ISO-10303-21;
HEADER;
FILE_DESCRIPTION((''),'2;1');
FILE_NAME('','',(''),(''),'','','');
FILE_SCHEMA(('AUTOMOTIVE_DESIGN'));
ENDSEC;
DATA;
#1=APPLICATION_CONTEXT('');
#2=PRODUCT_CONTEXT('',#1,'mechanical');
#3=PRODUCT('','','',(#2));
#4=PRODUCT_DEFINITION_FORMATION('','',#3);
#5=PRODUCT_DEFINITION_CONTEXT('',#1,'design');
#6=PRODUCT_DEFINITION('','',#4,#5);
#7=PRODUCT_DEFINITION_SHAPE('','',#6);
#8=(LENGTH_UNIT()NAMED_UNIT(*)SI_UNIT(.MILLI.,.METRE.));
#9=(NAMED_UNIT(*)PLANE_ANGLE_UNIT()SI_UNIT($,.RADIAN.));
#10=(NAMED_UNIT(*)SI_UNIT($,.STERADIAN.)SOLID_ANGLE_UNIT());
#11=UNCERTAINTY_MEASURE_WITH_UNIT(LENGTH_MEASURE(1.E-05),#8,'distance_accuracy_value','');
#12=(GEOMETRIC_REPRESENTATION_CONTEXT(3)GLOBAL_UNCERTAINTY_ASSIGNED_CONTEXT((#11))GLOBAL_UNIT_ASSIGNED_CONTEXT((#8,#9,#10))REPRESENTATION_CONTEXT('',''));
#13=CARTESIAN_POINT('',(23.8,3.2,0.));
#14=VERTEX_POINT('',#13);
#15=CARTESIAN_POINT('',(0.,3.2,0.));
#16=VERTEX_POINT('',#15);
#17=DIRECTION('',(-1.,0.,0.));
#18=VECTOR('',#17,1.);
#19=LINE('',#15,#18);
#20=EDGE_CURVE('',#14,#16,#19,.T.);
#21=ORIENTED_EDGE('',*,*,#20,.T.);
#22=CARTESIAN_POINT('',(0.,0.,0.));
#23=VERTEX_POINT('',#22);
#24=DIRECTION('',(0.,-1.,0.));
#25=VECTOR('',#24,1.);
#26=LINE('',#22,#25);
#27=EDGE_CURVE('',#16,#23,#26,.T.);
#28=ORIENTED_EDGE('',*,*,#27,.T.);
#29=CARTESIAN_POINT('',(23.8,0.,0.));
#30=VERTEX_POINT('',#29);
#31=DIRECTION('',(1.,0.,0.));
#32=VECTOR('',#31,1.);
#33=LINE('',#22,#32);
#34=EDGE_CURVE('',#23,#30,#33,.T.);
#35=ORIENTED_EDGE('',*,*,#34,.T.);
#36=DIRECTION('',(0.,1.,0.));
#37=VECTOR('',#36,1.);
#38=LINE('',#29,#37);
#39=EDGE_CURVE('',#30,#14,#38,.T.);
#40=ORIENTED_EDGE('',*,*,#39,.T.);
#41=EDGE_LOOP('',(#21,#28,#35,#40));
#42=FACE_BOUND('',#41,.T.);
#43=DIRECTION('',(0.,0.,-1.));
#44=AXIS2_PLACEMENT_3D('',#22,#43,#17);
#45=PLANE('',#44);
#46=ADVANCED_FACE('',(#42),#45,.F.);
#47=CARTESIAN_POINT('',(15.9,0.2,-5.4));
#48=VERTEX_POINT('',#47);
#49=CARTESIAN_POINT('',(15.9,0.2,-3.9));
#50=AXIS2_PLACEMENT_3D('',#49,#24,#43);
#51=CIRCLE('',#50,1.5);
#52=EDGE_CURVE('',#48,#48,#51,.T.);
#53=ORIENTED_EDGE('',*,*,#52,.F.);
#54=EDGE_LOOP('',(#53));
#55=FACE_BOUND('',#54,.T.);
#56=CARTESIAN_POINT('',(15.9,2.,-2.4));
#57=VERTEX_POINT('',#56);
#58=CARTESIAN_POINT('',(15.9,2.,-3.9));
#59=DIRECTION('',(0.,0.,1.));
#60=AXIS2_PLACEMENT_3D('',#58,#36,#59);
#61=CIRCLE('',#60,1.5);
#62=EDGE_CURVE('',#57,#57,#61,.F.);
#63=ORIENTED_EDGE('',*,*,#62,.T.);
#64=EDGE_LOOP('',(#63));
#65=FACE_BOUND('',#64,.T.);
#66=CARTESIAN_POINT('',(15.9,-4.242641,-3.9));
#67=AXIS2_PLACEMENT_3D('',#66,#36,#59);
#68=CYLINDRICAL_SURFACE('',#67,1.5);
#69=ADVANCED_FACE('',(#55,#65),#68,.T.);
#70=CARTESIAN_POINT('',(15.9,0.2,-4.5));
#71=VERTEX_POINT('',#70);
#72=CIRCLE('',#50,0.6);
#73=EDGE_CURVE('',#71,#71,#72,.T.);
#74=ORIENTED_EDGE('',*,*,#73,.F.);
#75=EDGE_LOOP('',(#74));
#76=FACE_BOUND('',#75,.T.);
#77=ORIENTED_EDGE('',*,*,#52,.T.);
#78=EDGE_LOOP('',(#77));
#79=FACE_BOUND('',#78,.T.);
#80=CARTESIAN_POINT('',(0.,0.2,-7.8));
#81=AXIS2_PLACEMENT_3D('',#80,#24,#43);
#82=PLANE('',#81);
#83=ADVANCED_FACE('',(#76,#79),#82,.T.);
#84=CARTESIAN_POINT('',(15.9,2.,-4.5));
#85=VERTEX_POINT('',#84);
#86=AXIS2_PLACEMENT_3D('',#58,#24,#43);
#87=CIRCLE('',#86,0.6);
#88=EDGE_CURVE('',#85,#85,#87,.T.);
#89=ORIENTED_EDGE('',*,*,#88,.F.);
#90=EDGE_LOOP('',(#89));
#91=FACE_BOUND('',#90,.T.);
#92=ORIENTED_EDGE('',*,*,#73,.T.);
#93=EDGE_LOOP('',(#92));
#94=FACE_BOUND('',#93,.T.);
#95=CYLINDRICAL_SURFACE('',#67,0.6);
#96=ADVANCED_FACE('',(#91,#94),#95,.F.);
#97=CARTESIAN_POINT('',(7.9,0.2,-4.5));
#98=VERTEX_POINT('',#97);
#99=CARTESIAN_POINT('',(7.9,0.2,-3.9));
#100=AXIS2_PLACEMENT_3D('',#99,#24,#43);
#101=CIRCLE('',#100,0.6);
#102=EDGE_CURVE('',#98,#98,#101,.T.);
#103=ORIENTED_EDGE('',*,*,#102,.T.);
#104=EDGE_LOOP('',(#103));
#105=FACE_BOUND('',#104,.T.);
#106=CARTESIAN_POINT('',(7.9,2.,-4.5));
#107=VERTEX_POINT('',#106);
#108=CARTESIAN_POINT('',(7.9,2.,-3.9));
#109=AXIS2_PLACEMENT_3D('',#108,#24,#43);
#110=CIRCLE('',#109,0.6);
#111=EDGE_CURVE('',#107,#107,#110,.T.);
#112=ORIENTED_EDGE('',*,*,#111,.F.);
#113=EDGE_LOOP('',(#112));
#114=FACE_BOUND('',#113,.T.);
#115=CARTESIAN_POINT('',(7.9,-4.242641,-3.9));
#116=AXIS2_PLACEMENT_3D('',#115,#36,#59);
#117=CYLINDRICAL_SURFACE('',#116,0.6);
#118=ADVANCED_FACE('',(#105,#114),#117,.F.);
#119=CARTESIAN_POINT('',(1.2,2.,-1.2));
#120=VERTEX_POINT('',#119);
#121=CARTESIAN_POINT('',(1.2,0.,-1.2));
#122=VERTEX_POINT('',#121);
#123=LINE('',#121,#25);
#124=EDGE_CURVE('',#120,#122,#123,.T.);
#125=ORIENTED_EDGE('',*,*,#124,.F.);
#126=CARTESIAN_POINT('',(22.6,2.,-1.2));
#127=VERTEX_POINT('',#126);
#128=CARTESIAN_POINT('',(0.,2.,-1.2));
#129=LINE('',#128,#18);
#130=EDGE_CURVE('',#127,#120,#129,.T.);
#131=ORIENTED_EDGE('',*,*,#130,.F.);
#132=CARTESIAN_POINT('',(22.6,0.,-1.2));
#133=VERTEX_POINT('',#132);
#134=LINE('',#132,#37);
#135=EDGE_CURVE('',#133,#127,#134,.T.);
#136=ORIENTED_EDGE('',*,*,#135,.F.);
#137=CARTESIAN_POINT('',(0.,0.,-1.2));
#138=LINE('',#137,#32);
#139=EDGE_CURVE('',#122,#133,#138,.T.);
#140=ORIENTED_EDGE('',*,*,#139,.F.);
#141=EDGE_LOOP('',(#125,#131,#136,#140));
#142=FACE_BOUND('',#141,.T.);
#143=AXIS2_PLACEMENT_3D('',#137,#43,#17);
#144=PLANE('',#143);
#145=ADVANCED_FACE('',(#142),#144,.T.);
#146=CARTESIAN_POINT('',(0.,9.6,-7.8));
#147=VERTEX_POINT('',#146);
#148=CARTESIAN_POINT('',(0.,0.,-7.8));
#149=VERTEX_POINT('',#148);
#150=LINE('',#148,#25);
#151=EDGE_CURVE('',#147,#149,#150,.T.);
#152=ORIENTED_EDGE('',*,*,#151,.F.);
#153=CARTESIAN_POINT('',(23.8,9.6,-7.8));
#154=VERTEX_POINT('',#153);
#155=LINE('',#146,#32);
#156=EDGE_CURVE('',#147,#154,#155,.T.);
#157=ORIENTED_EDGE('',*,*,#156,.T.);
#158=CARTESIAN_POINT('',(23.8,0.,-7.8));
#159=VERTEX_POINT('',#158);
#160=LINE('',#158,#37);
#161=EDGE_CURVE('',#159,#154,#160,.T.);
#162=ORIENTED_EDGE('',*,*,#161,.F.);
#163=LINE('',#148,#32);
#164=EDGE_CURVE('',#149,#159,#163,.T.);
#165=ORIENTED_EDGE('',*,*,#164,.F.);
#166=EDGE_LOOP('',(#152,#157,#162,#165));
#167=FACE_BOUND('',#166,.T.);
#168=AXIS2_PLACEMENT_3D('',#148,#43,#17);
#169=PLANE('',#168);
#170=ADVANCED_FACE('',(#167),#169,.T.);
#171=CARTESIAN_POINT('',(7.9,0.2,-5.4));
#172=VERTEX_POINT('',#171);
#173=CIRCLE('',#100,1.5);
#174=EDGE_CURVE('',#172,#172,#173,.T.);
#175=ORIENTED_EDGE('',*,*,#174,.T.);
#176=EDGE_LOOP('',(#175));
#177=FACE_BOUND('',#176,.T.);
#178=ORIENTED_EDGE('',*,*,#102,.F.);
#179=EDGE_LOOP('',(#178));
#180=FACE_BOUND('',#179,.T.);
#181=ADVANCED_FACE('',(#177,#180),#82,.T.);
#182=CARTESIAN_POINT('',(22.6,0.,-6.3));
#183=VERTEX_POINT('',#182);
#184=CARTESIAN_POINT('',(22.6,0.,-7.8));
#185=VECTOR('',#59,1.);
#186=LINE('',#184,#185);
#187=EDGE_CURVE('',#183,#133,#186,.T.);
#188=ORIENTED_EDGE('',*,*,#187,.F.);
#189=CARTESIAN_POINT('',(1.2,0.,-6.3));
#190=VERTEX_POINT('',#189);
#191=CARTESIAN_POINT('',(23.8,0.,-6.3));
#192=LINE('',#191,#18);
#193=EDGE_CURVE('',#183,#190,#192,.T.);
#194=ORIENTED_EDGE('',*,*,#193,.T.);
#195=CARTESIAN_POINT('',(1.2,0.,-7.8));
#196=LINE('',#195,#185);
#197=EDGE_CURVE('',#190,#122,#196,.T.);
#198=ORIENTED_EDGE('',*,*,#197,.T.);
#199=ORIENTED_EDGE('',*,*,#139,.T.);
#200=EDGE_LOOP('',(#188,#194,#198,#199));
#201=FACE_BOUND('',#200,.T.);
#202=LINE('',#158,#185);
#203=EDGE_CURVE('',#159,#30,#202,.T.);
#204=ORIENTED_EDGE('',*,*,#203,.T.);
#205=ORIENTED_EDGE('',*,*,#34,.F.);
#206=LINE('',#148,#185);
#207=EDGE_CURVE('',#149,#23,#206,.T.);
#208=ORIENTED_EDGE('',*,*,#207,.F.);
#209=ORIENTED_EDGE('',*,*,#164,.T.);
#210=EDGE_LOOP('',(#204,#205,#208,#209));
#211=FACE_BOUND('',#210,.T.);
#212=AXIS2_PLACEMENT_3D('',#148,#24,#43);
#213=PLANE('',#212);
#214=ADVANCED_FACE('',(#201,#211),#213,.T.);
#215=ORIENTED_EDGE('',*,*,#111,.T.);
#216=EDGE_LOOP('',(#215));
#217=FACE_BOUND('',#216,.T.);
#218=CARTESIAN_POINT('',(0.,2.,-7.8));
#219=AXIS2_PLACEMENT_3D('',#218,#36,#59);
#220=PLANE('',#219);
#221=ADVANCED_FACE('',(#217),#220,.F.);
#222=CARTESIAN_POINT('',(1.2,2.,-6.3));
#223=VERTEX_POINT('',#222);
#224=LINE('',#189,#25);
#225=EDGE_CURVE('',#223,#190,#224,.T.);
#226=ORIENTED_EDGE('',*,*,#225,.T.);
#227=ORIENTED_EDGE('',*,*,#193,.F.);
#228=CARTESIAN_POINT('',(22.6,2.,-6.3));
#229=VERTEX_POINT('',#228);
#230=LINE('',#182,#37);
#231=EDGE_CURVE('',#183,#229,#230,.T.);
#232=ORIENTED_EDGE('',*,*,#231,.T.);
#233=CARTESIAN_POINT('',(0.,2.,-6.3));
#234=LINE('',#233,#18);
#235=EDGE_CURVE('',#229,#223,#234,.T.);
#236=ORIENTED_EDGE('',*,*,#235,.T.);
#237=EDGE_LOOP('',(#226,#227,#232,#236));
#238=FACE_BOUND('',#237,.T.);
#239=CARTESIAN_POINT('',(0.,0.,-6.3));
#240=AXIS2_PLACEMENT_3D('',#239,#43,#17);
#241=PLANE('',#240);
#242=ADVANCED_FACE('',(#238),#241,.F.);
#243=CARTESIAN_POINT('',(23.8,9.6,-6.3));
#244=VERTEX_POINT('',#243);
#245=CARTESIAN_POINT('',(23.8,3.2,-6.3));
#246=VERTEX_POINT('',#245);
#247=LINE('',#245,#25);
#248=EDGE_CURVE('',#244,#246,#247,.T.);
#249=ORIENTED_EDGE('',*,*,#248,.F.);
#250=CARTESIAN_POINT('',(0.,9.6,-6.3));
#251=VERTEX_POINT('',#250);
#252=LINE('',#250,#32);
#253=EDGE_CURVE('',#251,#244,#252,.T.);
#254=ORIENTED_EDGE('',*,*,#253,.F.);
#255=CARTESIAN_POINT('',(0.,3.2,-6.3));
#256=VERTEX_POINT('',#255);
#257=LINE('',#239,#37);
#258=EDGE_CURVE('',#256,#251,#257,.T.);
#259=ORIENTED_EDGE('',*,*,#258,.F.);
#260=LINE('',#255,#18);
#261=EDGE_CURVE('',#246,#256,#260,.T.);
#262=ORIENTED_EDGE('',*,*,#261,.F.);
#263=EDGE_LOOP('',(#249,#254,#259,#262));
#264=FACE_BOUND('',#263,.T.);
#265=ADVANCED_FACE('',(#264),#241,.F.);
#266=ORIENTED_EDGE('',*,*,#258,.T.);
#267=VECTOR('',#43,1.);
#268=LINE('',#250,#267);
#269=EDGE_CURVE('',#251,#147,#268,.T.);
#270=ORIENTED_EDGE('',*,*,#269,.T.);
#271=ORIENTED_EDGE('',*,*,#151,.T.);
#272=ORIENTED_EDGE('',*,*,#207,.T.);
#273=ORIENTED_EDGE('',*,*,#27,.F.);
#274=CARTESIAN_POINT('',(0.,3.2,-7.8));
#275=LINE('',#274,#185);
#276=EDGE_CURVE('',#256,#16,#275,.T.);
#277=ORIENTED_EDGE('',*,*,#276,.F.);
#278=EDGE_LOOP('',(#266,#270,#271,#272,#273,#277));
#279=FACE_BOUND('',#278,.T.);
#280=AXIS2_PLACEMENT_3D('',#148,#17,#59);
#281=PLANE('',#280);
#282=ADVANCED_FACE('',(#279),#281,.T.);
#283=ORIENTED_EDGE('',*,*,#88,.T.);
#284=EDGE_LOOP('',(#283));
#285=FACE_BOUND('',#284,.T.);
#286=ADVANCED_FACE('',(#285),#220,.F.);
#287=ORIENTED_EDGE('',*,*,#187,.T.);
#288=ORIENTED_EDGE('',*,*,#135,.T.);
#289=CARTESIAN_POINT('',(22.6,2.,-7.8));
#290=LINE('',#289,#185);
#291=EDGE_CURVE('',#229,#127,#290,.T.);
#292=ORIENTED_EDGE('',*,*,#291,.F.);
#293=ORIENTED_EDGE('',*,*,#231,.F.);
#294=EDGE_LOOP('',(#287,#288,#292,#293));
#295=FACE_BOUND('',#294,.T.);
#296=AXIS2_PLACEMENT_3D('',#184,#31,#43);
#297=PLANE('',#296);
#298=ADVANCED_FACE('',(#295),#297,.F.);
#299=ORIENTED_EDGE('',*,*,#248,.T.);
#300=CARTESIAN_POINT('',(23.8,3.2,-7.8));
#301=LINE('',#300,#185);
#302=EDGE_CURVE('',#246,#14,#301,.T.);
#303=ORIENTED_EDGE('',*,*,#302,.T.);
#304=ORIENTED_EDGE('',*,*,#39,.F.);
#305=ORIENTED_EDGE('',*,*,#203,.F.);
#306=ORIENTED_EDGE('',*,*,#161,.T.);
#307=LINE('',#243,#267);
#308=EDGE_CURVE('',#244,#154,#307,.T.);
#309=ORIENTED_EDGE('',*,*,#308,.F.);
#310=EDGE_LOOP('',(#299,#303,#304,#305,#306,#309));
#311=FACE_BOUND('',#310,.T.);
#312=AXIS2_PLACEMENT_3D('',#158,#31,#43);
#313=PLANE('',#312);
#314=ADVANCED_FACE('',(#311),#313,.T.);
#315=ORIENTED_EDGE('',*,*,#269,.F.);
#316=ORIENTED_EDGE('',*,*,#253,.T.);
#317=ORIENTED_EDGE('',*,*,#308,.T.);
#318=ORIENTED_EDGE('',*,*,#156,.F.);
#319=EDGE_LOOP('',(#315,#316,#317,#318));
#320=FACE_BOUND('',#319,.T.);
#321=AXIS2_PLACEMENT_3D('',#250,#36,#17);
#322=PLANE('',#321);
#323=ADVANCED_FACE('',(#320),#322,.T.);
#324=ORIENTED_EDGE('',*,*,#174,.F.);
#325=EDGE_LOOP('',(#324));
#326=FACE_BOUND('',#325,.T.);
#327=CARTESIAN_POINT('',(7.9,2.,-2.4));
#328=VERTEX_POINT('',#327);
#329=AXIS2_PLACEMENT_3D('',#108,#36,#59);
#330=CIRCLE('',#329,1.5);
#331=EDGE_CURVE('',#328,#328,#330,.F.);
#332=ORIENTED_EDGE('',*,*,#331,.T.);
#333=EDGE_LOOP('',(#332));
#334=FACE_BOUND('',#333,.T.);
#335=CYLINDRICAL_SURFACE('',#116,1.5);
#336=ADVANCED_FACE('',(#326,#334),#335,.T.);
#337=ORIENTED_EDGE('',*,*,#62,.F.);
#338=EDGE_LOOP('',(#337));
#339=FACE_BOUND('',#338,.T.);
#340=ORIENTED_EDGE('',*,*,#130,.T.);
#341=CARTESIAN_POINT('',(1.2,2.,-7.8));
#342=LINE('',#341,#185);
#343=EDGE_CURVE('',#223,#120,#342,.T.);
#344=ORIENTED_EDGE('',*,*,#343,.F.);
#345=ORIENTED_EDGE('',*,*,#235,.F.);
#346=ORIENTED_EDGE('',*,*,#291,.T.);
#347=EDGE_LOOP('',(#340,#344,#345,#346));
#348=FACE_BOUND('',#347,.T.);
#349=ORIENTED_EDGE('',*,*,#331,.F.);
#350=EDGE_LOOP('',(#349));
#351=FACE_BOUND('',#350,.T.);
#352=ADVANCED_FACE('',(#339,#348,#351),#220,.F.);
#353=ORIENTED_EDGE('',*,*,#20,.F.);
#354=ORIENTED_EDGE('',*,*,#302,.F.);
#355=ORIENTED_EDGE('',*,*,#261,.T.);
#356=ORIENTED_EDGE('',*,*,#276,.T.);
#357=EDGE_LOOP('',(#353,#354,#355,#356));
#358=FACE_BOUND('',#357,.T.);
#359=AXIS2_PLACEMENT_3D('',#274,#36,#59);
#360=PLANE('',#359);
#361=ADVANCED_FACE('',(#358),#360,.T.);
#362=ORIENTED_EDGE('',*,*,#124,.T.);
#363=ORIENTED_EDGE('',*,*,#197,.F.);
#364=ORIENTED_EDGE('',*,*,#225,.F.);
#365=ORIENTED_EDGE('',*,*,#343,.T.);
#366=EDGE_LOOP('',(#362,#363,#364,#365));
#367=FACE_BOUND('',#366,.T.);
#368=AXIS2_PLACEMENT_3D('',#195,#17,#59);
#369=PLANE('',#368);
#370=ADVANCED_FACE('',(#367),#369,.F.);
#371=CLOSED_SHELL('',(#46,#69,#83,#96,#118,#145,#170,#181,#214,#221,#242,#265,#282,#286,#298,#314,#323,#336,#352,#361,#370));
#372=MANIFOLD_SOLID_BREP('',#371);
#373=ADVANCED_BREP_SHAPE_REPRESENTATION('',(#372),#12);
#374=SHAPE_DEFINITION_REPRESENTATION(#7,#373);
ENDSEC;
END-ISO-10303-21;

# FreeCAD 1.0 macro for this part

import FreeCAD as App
import Part
import Sketcher
from FreeCAD import Vector
Q = App.Units.Quantity


def faces_at(feature, points):
    """Names of the faces that lie closest to the given points."""
    faces = feature.Shape.Faces
    near = lambda p: min(range(len(faces)), key=lambda i: faces[i].distToShape(Part.Vertex(*p))[0])
    return sorted({f"Face{near(p) + 1}" for p in points})


def add_polygon(sketch, points):
    """Adds a closed chain of lines whose ends are joined by coincident constraints."""
    first, n = sketch.GeometryCount, len(points)
    for a, b in zip(points, points[1:] + points[:1]):
        sketch.addGeometry(Part.LineSegment(App.Vector(*a, 0), App.Vector(*b, 0)), False)
    for i in range(n):
        sketch.addConstraint(Sketcher.Constraint("Coincident", first + i, 2, first + (i + 1) % n, 1))

doc = App.newDocument("Part")
params = doc.addObject("Spreadsheet::Sheet", "Params")
for row, (alias, value) in enumerate([
    ("sketch1_width", "23.8 mm"),
    ("sketch1_height", "3.2 mm"),
    ("pad1_length", "7.8 mm"),
    ("thickness_wall", "1.2 mm"),
    ("sketch2_diameter", "3 mm"),
    ("sketch2_diameter2", "1.2 mm"),
    ("pad2_length", "1.8 mm"),
    ("linearpattern_pitch", "8 mm"),
    ("sketch3_width", "23.8 mm"),
    ("sketch3_height", "9.6 mm"),
    ("pad3_length", "1.5 mm"),
], start=1):
    params.set(f"A{row}", alias)
    params.set(f"B{row}", "=" + value)
    params.setAlias(f"B{row}", alias)

body = doc.addObject("PartDesign::Body", "Body")

# Sketch on XY plane
sketch1 = body.newObject("Sketcher::SketchObject", "Sketch")
sketch1.AttachmentSupport = (doc.getObject("XY_Plane"), [""])
sketch1.MapMode = "FlatFace"
add_polygon(sketch1, [(0, 3.2), (0, 0), (23.8, 0), (23.8, 3.2)])  # lines 0-3
sketch1.addConstraint([
    Sketcher.Constraint("Vertical", 0),
    Sketcher.Constraint("Horizontal", 1),
    Sketcher.Constraint("Vertical", 2),
    Sketcher.Constraint("Horizontal", 3),
    Sketcher.Constraint("Coincident", 0, 2, -1, 1),
    Sketcher.Constraint("DistanceX", 1, 1, 1, 2, Q("23.8 mm")),
    Sketcher.Constraint("DistanceY", 0, 2, 0, 1, Q("3.2 mm")),
])
sketch1.setExpression("Constraints[9]", "Params.sketch1_width")
sketch1.setExpression("Constraints[10]", "Params.sketch1_height")
pad1 = body.newObject("PartDesign::Pad", "Pad")
pad1.Profile = sketch1
pad1.setExpression("Length", "Params.pad1_length")
pad1.Reversed = True
doc.recompute()

thickness = body.newObject("PartDesign::Thickness", "Thickness")
thickness.Base = (pad1, faces_at(pad1, [(11.9, 0, -3.9)]))
thickness.setExpression("Value", "Params.thickness_wall")
thickness.Reversed = True
thickness.Join = "Intersection"

# Sketch on XZ plane
sketch2 = body.newObject("Sketcher::SketchObject", "Sketch001")
sketch2.AttachmentSupport = (doc.getObject("XZ_Plane"), [""])
sketch2.MapMode = "FlatFace"
sketch2.AttachmentOffset = App.Placement(Vector(0, 0, -2), App.Rotation())
sketch2.addGeometry([
    Part.Circle(Vector(15.9, -3.9, 0), Vector(0, 0, 1), 1.5),
    Part.Circle(Vector(15.9, -3.9, 0), Vector(0, 0, 1), 0.6),
], False)
sketch2.addConstraint([
    Sketcher.Constraint("Coincident", 1, 3, 0, 3),
    Sketcher.Constraint("Diameter", 0, Q("3 mm")),
    Sketcher.Constraint("Diameter", 1, Q("1.2 mm")),
    Sketcher.Constraint("DistanceX", -1, 1, 0, 3, Q("15.9 mm")),
    Sketcher.Constraint("DistanceY", 0, 3, -1, 1, Q("3.9 mm")),
])
sketch2.setExpression("Constraints[1]", "Params.sketch2_diameter")
sketch2.setExpression("Constraints[2]", "Params.sketch2_diameter2")
pad2 = body.newObject("PartDesign::Pad", "Pad001")
pad2.Profile = sketch2
pad2.setExpression("Length", "Params.pad2_length")
doc.recompute()

linearpattern = body.newObject("PartDesign::LinearPattern", "LinearPattern")
linearpattern.Originals = [pad2]
linearpattern.Direction = (doc.getObject("X_Axis"), [""])
linearpattern.Mode = "offset"
linearpattern.setExpression("Offset", "Params.linearpattern_pitch")
linearpattern.Occurrences = 2
linearpattern.Reversed = True
body.Tip = linearpattern

# Sketch on XY plane
sketch3 = body.newObject("Sketcher::SketchObject", "Sketch002")
sketch3.AttachmentSupport = (doc.getObject("XY_Plane"), [""])
sketch3.MapMode = "FlatFace"
sketch3.AttachmentOffset = App.Placement(Vector(0, 0, -7.8), App.Rotation())
add_polygon(sketch3, [(23.8, 9.6), (23.8, 0), (0, 0), (0, 9.6)])  # lines 0-3
sketch3.addConstraint([
    Sketcher.Constraint("Vertical", 0),
    Sketcher.Constraint("Horizontal", 1),
    Sketcher.Constraint("Vertical", 2),
    Sketcher.Constraint("Horizontal", 3),
    Sketcher.Constraint("Coincident", 1, 2, -1, 1),
    Sketcher.Constraint("DistanceX", 1, 2, 1, 1, Q("23.8 mm")),
    Sketcher.Constraint("DistanceY", 0, 2, 0, 1, Q("9.6 mm")),
])
sketch3.setExpression("Constraints[9]", "Params.sketch3_width")
sketch3.setExpression("Constraints[10]", "Params.sketch3_height")
pad3 = body.newObject("PartDesign::Pad", "Pad002")
pad3.Profile = sketch3
pad3.setExpression("Length", "Params.pad3_length")

doc.recompute()
